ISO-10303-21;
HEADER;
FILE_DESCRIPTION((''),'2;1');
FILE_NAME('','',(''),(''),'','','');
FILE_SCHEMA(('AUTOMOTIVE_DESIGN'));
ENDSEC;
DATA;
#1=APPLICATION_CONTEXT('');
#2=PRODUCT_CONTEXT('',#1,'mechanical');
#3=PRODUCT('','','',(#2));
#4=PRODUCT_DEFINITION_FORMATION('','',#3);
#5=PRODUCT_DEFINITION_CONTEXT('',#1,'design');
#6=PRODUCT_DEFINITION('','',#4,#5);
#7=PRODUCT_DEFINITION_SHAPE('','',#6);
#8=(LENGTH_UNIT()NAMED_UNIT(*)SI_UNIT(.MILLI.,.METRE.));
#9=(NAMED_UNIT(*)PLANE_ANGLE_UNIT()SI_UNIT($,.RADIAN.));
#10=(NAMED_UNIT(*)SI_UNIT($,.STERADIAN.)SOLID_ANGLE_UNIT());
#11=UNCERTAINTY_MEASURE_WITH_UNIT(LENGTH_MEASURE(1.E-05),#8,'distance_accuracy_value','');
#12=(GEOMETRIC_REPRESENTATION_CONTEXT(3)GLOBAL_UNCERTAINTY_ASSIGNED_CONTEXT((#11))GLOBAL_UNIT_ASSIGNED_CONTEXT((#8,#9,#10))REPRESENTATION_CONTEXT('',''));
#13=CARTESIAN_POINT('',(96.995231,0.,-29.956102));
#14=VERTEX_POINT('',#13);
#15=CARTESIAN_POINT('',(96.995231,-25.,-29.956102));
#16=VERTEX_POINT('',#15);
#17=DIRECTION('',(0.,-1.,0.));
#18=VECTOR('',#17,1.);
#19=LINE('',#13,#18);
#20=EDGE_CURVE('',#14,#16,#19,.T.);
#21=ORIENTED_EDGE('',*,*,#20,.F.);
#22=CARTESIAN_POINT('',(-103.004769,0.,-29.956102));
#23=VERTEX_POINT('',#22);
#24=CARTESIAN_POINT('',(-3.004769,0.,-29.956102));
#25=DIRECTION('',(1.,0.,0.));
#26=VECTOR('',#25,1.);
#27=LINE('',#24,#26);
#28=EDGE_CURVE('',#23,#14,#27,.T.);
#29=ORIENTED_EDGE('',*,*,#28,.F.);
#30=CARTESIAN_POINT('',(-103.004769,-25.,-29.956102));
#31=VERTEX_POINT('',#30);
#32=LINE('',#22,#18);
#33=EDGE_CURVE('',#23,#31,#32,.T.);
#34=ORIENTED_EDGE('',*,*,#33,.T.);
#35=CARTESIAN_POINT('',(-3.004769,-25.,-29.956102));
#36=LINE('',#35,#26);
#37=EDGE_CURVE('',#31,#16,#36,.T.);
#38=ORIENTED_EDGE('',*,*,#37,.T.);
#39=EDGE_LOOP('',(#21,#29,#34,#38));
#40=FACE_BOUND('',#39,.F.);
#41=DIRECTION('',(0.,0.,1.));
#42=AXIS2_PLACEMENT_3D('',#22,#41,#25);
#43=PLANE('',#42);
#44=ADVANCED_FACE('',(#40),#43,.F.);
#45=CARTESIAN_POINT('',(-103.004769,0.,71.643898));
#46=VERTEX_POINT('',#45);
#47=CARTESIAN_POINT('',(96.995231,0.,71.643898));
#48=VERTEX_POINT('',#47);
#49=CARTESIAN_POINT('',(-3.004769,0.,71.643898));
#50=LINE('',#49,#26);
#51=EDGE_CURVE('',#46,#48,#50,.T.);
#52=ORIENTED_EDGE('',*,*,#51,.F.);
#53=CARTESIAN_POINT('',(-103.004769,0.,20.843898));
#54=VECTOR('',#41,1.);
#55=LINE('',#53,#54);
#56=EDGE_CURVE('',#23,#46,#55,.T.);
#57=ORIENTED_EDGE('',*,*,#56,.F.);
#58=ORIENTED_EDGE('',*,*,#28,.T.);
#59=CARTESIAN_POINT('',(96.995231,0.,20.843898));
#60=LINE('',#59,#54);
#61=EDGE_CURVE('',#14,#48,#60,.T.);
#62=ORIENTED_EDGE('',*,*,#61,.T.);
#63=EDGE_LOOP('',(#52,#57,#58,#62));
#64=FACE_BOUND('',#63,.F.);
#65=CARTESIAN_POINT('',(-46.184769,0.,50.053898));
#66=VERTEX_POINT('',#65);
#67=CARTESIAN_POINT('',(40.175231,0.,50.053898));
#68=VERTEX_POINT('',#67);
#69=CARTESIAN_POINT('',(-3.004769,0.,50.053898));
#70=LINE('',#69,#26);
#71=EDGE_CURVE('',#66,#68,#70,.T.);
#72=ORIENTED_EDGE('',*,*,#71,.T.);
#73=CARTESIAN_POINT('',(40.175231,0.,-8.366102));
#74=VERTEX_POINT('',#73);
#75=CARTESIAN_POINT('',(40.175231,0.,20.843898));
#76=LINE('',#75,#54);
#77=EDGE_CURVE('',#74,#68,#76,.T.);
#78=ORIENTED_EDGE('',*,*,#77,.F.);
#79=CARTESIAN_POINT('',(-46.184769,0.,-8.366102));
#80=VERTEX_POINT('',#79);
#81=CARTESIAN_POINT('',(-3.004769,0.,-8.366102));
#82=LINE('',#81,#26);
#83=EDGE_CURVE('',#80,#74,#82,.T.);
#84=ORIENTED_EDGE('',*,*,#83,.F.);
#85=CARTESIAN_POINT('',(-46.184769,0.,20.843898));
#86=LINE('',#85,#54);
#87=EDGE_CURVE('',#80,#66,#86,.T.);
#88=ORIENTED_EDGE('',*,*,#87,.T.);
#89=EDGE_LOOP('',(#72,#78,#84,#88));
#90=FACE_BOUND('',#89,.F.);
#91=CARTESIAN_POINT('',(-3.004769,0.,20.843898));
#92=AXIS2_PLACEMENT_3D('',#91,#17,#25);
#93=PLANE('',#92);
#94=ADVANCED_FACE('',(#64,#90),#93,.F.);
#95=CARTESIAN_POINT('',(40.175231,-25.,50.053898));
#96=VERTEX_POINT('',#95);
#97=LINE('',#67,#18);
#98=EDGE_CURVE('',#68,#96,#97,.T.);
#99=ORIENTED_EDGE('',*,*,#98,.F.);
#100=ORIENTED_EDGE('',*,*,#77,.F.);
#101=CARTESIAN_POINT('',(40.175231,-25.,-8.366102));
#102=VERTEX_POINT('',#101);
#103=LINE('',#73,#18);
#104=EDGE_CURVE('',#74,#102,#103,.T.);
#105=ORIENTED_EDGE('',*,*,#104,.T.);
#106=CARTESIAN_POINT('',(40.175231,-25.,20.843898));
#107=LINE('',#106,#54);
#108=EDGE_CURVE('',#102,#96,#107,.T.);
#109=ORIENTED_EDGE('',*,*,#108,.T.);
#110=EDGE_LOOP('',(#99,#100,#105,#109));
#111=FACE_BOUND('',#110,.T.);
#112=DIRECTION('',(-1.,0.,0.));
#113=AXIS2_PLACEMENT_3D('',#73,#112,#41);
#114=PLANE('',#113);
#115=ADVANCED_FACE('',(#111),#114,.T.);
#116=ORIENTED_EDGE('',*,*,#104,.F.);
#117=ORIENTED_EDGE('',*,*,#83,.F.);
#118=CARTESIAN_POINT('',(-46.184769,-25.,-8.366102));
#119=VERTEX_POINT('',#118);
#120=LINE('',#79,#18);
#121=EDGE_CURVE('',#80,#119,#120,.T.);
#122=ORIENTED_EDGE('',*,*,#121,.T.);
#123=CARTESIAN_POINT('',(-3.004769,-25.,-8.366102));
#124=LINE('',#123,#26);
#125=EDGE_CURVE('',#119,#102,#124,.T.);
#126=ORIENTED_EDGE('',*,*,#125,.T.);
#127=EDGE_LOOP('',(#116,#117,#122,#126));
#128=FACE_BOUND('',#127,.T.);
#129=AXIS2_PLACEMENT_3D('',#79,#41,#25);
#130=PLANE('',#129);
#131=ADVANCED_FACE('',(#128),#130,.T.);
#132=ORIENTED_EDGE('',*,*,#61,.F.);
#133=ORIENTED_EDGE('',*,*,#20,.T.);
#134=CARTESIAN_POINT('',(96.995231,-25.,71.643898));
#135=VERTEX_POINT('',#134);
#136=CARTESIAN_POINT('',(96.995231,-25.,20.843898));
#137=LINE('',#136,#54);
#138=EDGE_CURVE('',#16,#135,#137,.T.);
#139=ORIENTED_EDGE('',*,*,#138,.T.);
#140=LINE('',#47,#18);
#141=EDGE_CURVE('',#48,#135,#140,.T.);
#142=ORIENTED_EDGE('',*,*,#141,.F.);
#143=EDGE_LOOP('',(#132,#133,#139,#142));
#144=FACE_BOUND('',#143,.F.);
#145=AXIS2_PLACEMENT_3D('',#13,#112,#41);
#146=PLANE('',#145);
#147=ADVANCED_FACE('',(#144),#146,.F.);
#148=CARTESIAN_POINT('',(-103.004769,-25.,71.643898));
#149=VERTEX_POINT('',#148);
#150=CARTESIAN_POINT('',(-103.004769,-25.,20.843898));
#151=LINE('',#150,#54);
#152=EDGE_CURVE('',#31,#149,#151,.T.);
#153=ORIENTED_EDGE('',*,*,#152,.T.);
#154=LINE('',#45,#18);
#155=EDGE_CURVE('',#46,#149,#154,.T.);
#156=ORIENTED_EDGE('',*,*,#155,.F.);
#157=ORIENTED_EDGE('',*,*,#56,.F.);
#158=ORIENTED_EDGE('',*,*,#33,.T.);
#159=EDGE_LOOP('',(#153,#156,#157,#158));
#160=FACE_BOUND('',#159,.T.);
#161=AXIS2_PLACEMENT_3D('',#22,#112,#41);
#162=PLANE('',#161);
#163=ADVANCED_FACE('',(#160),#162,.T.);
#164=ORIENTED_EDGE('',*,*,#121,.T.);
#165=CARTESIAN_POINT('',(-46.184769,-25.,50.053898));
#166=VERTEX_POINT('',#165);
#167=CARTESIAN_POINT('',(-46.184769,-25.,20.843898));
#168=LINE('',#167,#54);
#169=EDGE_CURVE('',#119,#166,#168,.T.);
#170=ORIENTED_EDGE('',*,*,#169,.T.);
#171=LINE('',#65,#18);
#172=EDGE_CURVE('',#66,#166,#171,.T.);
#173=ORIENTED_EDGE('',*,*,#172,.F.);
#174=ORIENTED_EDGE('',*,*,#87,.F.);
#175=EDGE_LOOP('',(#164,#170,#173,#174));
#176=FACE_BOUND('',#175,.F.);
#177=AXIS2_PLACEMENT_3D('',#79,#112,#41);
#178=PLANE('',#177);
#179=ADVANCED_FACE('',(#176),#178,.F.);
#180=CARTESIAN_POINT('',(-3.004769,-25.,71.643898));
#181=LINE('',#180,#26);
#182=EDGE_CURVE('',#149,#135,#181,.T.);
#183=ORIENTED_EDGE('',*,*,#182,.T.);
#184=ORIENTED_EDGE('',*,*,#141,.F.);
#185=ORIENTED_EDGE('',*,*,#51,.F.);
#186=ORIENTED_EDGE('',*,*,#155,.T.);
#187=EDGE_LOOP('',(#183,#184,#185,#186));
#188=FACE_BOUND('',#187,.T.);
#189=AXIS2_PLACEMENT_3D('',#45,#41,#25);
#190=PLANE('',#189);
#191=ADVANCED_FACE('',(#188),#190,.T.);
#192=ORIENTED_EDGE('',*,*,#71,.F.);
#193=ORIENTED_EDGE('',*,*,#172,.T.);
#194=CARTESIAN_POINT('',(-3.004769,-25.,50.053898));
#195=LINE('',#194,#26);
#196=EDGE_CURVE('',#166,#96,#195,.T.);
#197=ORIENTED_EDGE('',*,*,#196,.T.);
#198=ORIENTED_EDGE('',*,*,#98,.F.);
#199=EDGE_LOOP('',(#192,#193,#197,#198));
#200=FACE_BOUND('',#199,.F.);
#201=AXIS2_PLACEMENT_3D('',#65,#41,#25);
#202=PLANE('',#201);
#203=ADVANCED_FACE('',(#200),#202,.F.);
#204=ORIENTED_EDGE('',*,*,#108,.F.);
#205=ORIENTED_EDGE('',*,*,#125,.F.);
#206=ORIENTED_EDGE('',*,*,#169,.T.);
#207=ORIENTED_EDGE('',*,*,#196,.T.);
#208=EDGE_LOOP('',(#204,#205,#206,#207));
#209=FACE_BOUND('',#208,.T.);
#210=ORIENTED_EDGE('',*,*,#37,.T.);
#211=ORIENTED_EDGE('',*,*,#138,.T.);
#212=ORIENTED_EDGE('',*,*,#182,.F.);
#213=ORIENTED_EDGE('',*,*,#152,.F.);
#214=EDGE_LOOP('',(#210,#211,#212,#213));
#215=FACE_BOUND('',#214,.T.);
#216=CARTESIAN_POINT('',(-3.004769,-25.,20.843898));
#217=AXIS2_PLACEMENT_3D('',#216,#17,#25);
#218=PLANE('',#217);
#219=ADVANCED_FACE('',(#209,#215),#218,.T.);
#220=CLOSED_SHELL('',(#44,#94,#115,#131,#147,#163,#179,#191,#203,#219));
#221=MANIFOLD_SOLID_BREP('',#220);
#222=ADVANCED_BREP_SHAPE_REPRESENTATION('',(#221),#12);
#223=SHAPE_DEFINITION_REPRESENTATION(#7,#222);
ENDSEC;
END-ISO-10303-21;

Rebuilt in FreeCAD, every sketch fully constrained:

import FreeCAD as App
import Part
import Sketcher

V = App.Vector
Q = App.Units.Quantity


def add_polygon(sketch, points):
    """Adds a closed chain of lines whose ends are joined by coincident constraints."""
    first, n = sketch.GeometryCount, len(points)
    for a, b in zip(points, points[1:] + points[:1]):
        sketch.addGeometry(Part.LineSegment(App.Vector(*a, 0), App.Vector(*b, 0)), False)
    for i in range(n):
        sketch.addConstraint(Sketcher.Constraint("Coincident", first + i, 2, first + (i + 1) % n, 1))

doc = App.newDocument("Part")
body = doc.addObject("PartDesign::Body", "Body")

# Sketch on XZ plane
sketch1 = doc.addObject("Sketcher::SketchObject", "Sketch")
body.addObject(sketch1)
sketch1.AttachmentSupport = (doc.XZ_Plane, [""])
sketch1.MapMode = "FlatFace"
add_polygon(sketch1, [(-103.004769, 71.643898), (-103.004769, -29.956102), (96.995231, -29.956102), (96.995231, 71.643898)])  # lines 0-3
add_polygon(sketch1, [(40.175231, -8.366102), (-46.184769, -8.366102), (-46.184769, 50.053898), (40.175231, 50.053898)])  # lines 4-7
sketch1.addConstraint(Sketcher.Constraint("Vertical", 0))
sketch1.addConstraint(Sketcher.Constraint("Horizontal", 1))
sketch1.addConstraint(Sketcher.Constraint("Vertical", 2))
sketch1.addConstraint(Sketcher.Constraint("Horizontal", 3))
sketch1.addConstraint(Sketcher.Constraint("Horizontal", 4))
sketch1.addConstraint(Sketcher.Constraint("Vertical", 5))
sketch1.addConstraint(Sketcher.Constraint("Horizontal", 6))
sketch1.addConstraint(Sketcher.Constraint("Vertical", 7))
sketch1.addConstraint(Sketcher.Constraint("DistanceY", 0, 2, 0, 1, Q("4 in")))
sketch1.addConstraint(Sketcher.Constraint("DistanceX", 4, 2, 4, 1, Q("3.4 in")))
sketch1.addConstraint(Sketcher.Constraint("DistanceY", 5, 1, 5, 2, Q("2.3 in")))
sketch1.addConstraint(Sketcher.Constraint("DistanceY", 0, 2, 4, 2, Q("0.85 in")))
sketch1.addConstraint(Sketcher.Constraint("DistanceX", 1, 1, 1, 2, Q("200 mm")))
sketch1.addConstraint(Sketcher.Constraint("DistanceX", 0, 2, 4, 2, Q("56.82 mm")))
sketch1.addConstraint(Sketcher.Constraint("DistanceX", 0, 2, -1, 1, Q("103.004769 mm")))
sketch1.addConstraint(Sketcher.Constraint("DistanceY", 0, 2, -1, 1, Q("29.956102 mm")))
pad1 = doc.addObject("PartDesign::Pad", "Pad")
body.addObject(pad1)
pad1.Profile = sketch1
pad1.Length = 25

# Sketch on XZ plane
sketch2 = doc.addObject("Sketcher::SketchObject", "Sketch001")
body.addObject(sketch2)
sketch2.AttachmentSupport = (doc.XZ_Plane, [""])
sketch2.MapMode = "FlatFace"
add_polygon(sketch2, [(-46.184769, 50.053898), (-46.184769, -8.366102), (40.175231, -8.366102), (40.175231, 50.053898)])  # lines 0-3
sketch2.addConstraint(Sketcher.Constraint("Vertical", 0))
sketch2.addConstraint(Sketcher.Constraint("Horizontal", 1))
sketch2.addConstraint(Sketcher.Constraint("Vertical", 2))
sketch2.addConstraint(Sketcher.Constraint("Horizontal", 3))
sketch2.addConstraint(Sketcher.Constraint("DistanceX", 1, 1, 1, 2, Q("3.4 in")))
sketch2.addConstraint(Sketcher.Constraint("DistanceY", 0, 2, 0, 1, Q("2.3 in")))
sketch2.addConstraint(Sketcher.Constraint("DistanceX", 0, 2, -1, 1, Q("46.184769 mm")))
sketch2.addConstraint(Sketcher.Constraint("DistanceY", 0, 2, -1, 1, Q("8.366102 mm")))
pocket1 = doc.addObject("PartDesign::Pocket", "Pocket")
body.addObject(pocket1)
pocket1.Profile = sketch2
pocket1.Length = 25
pocket1.Reversed = True

doc.recompute()
